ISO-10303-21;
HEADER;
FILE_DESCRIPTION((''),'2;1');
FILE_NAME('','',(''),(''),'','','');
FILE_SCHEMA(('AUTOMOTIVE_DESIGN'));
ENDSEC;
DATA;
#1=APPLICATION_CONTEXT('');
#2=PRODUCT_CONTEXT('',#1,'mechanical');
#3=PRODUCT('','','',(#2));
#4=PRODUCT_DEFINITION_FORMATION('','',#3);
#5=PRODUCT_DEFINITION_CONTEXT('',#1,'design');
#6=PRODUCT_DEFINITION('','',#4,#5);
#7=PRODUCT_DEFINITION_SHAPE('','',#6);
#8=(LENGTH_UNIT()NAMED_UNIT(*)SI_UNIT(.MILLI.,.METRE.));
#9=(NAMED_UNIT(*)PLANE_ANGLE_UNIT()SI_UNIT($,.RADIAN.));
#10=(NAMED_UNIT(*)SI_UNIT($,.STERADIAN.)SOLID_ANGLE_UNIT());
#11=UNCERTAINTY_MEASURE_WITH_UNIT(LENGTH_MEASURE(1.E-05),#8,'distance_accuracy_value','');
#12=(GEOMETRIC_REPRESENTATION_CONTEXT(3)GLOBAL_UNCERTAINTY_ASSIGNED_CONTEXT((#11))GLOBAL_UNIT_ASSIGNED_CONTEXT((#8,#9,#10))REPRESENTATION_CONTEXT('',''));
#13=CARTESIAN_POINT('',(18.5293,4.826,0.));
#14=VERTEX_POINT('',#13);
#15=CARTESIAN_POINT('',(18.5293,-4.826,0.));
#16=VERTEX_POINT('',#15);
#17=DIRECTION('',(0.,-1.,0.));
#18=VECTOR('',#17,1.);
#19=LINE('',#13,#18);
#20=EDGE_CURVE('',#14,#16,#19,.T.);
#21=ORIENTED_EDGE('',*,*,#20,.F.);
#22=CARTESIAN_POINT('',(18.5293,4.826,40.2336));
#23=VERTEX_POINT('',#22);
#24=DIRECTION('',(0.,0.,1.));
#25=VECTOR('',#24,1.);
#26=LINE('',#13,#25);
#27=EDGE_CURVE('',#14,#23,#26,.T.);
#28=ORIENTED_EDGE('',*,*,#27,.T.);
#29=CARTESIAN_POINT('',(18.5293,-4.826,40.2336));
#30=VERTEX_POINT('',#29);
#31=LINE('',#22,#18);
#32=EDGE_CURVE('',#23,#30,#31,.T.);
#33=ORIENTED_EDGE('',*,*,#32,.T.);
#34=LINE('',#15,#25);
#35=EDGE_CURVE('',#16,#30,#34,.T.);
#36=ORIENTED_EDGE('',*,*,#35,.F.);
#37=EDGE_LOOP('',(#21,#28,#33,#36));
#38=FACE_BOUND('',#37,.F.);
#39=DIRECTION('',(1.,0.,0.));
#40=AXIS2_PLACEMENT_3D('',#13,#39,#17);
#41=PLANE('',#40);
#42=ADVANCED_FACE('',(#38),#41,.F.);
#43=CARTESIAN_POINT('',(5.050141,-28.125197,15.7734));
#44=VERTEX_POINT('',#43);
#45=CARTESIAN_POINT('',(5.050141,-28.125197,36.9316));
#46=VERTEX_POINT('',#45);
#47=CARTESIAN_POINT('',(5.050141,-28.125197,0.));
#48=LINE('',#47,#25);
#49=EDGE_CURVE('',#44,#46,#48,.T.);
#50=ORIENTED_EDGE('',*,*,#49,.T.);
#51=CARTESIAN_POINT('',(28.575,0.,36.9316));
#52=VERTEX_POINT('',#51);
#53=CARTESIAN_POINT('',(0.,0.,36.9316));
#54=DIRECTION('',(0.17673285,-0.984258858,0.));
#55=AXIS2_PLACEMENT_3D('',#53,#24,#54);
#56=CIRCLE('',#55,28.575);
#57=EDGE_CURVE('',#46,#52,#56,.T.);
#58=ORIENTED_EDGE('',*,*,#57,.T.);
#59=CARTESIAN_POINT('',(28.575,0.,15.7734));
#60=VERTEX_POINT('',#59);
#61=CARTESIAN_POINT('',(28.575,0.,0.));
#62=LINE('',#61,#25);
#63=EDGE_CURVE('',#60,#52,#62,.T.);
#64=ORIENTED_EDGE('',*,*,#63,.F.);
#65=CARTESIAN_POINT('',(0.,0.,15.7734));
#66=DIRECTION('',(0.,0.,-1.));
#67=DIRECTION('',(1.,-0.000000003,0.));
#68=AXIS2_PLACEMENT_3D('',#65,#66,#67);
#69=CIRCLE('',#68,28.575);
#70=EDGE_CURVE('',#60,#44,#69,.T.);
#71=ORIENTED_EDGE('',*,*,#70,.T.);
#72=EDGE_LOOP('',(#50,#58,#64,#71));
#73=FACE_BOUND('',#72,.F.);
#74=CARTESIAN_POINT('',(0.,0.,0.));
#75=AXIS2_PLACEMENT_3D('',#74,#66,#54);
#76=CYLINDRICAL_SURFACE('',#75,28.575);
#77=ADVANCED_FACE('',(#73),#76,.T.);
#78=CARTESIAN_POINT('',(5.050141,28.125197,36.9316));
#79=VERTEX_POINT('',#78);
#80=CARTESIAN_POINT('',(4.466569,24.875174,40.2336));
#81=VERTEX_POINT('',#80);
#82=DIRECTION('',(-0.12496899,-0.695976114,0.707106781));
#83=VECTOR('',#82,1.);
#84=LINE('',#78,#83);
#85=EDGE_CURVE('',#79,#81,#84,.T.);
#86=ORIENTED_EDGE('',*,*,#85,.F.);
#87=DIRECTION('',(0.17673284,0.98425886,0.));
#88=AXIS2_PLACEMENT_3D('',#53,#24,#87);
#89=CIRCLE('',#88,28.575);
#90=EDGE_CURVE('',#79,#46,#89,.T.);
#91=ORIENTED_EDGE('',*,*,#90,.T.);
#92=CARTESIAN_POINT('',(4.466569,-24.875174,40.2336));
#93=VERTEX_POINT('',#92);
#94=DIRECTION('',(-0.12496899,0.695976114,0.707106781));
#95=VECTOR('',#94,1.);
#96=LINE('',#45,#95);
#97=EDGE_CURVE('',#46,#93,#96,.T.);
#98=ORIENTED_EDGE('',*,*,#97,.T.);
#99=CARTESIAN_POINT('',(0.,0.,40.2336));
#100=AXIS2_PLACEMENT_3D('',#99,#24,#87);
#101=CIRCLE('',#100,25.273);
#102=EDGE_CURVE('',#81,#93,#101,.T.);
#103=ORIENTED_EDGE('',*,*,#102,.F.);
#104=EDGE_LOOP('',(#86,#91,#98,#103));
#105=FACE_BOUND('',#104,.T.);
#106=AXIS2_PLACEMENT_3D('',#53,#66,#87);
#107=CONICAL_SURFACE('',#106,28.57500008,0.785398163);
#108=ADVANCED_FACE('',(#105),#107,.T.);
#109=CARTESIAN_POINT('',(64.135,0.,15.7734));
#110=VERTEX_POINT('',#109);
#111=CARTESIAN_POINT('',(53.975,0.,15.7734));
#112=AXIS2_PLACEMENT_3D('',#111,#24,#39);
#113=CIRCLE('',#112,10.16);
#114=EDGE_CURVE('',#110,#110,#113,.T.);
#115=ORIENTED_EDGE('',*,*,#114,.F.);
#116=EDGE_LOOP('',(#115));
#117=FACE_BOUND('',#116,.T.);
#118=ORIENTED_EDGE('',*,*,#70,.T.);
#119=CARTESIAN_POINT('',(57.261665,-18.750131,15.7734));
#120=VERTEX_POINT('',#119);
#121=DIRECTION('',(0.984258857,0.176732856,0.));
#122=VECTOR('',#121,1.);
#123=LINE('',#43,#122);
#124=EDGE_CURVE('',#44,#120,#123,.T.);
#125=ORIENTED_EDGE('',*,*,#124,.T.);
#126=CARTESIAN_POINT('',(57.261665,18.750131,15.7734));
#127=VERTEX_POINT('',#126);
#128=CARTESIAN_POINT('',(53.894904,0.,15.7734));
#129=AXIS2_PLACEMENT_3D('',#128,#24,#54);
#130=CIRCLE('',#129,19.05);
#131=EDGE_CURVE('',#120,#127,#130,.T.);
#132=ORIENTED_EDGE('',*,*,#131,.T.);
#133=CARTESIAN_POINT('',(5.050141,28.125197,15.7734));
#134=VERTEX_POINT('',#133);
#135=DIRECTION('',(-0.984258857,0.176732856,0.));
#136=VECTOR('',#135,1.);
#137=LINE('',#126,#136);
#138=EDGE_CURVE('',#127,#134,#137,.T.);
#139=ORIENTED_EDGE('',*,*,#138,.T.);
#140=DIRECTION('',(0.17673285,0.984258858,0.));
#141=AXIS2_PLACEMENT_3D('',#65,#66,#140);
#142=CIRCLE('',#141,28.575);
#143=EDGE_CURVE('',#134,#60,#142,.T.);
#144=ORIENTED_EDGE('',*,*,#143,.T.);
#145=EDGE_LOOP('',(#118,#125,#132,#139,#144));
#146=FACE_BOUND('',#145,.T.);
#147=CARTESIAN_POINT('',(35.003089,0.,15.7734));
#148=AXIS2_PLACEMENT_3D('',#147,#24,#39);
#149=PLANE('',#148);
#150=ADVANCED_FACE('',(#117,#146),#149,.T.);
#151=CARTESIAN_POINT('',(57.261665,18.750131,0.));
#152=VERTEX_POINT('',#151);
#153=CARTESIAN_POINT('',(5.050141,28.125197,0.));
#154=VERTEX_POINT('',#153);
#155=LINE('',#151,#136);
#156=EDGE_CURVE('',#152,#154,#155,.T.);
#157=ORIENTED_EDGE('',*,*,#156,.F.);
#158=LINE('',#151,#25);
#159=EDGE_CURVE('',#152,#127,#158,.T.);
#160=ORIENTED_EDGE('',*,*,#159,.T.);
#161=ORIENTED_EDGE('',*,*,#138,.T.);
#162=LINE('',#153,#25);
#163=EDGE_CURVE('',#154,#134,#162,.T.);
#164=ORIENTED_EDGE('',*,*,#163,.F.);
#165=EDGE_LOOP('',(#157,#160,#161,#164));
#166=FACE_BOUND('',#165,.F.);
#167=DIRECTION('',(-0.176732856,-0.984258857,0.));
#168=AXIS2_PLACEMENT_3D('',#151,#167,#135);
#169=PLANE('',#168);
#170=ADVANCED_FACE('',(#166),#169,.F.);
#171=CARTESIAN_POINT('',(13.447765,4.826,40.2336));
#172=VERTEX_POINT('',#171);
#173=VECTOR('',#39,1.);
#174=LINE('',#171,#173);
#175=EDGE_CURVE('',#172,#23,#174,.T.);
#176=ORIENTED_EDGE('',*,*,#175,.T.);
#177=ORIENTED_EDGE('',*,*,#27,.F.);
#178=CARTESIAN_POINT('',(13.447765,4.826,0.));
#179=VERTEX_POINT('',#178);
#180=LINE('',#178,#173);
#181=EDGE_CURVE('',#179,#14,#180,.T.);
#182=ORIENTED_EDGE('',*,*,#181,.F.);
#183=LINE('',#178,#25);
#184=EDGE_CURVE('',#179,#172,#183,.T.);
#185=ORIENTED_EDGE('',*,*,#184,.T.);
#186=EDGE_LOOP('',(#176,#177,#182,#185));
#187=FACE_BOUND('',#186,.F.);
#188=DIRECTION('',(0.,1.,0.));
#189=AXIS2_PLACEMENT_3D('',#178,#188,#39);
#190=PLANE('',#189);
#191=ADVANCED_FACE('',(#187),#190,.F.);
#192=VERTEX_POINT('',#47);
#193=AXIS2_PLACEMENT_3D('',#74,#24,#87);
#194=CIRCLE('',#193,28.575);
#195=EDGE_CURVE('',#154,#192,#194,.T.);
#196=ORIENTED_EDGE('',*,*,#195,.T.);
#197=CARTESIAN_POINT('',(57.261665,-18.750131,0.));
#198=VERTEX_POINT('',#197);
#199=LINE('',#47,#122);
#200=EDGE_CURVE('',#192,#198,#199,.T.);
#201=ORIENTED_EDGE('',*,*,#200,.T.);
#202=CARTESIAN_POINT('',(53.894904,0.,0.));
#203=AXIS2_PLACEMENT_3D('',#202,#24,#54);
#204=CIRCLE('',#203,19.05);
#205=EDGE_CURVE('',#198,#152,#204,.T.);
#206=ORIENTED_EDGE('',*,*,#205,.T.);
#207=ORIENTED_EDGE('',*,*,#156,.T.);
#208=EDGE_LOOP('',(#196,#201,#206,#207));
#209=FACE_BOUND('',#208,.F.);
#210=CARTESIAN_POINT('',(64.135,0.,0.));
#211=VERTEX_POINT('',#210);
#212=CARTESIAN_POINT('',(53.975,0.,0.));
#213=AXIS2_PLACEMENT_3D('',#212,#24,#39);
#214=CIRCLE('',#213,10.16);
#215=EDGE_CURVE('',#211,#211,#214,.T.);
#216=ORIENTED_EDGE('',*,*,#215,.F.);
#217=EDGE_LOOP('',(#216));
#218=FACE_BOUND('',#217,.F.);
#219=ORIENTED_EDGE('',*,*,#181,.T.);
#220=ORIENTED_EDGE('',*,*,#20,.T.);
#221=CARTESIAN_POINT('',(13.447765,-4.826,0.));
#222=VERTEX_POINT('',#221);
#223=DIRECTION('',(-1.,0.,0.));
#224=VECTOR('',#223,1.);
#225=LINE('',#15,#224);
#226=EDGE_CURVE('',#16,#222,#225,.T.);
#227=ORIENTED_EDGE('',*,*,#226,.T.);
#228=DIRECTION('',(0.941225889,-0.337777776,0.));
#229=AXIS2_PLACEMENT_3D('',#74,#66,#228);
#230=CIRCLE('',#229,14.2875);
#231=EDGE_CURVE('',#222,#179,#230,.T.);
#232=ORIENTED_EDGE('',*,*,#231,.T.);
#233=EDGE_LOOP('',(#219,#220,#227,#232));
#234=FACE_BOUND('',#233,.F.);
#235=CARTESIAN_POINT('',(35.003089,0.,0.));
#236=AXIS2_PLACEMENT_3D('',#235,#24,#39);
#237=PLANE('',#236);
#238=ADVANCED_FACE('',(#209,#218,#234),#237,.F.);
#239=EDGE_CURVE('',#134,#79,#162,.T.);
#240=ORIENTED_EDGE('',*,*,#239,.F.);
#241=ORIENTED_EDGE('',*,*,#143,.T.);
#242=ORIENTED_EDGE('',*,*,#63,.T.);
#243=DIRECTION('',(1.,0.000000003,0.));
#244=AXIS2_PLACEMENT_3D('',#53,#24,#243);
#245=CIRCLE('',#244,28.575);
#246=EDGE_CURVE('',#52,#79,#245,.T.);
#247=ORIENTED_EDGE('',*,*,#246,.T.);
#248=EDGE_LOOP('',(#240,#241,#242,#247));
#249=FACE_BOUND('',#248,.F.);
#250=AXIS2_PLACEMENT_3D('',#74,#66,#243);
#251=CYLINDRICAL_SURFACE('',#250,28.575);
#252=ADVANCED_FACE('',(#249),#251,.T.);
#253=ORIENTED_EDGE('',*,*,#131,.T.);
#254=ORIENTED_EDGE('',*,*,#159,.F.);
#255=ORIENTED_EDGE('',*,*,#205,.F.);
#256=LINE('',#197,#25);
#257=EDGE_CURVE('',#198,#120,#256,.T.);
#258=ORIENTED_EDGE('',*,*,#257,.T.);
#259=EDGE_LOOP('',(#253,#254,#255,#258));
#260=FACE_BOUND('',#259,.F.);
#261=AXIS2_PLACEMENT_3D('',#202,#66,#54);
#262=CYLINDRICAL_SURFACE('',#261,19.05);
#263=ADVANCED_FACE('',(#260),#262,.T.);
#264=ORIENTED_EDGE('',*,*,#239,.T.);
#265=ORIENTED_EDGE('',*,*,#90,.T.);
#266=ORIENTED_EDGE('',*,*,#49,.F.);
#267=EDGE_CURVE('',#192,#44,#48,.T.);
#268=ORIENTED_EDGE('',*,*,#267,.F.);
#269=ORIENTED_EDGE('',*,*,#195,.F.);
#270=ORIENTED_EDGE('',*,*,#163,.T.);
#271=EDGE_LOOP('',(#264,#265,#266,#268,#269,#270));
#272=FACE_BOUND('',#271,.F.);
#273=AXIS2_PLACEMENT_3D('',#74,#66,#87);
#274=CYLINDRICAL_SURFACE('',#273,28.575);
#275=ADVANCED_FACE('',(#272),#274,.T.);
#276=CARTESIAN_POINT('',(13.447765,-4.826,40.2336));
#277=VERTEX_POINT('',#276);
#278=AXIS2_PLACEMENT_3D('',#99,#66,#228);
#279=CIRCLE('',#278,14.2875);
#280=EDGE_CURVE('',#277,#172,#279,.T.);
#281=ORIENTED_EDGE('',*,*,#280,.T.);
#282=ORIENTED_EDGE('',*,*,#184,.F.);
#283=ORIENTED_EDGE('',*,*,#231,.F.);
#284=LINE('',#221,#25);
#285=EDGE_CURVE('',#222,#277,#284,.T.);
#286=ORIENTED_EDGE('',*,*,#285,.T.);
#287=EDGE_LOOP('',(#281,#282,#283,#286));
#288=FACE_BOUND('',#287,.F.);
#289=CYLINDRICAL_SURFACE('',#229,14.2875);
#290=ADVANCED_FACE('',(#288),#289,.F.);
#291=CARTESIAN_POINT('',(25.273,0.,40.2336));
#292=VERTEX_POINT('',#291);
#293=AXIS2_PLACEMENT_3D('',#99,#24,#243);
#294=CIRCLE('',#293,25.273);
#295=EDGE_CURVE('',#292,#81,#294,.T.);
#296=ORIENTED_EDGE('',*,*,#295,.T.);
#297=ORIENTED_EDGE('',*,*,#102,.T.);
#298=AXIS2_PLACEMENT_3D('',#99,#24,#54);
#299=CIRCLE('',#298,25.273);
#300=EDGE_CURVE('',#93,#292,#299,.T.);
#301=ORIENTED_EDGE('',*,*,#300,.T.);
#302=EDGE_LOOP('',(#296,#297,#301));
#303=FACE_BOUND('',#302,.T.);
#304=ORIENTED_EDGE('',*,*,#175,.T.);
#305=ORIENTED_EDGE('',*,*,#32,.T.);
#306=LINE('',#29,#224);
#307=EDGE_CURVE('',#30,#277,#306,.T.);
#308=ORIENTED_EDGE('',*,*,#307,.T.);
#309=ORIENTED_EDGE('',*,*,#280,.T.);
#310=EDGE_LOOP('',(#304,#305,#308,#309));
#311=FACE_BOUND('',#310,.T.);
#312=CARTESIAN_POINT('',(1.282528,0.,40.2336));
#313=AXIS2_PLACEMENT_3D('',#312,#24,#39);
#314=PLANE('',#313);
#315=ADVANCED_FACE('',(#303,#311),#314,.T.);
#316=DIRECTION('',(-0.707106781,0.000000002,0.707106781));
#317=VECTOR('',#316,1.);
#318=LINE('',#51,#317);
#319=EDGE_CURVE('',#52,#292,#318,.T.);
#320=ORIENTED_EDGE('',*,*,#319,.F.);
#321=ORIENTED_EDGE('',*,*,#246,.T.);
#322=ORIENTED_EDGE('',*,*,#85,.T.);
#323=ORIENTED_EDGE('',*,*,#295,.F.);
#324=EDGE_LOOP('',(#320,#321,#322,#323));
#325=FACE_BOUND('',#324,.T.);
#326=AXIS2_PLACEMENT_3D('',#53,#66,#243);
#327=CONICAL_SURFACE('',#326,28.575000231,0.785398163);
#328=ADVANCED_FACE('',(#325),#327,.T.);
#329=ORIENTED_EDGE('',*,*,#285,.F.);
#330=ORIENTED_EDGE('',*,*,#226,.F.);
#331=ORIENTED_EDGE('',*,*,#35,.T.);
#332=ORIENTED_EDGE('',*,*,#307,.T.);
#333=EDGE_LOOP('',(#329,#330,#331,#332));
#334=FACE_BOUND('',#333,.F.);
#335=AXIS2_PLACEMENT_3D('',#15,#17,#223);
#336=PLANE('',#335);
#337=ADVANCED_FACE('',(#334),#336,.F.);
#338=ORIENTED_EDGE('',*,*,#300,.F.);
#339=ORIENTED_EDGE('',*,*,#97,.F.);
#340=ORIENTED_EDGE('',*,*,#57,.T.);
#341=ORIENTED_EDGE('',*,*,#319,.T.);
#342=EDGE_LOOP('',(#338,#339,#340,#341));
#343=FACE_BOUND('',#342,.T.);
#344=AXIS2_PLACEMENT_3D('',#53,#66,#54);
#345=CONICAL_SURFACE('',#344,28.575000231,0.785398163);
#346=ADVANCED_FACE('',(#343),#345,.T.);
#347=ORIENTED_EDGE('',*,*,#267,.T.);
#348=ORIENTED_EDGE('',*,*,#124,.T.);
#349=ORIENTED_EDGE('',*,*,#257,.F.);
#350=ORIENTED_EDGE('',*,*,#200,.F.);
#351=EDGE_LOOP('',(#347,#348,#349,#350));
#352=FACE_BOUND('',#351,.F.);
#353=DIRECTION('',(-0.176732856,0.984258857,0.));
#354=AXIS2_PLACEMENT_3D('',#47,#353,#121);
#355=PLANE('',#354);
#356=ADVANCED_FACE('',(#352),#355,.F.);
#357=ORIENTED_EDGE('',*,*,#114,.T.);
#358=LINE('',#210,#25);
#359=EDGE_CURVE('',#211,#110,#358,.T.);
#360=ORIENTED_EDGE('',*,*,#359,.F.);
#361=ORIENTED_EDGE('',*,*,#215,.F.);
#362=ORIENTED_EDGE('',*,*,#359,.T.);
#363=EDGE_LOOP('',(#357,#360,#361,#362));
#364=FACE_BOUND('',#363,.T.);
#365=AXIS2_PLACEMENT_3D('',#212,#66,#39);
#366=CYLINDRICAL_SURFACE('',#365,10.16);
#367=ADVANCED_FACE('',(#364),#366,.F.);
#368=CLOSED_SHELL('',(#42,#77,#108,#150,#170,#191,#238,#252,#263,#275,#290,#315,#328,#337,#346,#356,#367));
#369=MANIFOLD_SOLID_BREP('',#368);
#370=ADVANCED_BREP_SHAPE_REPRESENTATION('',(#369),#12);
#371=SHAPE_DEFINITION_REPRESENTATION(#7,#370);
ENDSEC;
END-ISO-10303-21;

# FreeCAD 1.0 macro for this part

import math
import FreeCAD as App
import Part
import Sketcher

V = App.Vector
Q = App.Units.Quantity


def edges_at(feature, points):
    """Names of the edges that pass closest to the given points."""
    edges = feature.Shape.Edges
    near = lambda p: min(range(len(edges)), key=lambda i: edges[i].distToShape(Part.Vertex(*p))[0])
    return sorted({f"Edge{near(p) + 1}" for p in points})

doc = App.newDocument("Part")
body = doc.addObject("PartDesign::Body", "Body")

# Sketch on XY plane
sketch1 = doc.addObject("Sketcher::SketchObject", "Sketch")
body.addObject(sketch1)
sketch1.AttachmentSupport = (doc.XY_Plane, [""])
sketch1.MapMode = "FlatFace"
sketch1.addGeometry([
    Part.ArcOfCircle(Part.Circle(V(0, 0, 0), V(0, 0, 1), 29), math.radians(-80), math.radians(0)),  # 0
    Part.ArcOfCircle(Part.Circle(V(0, 0, 0), V(0, 0, 1), 29), math.radians(0), math.radians(80)),  # 1
    Part.ArcOfCircle(Part.Circle(V(0, 0, 0), V(0, 0, 1), 29), math.radians(80), math.radians(280)),  # 2
    Part.LineSegment(V(19, -5, 0), V(13, -5, 0)),  # 3
    Part.ArcOfCircle(Part.Circle(V(0, 0, 0), V(0, 0, 1), 14), math.radians(20), math.radians(340)),  # 4
    Part.LineSegment(V(13, 5, 0), V(19, 5, 0)),  # 5
    Part.LineSegment(V(19, 5, 0), V(19, -5, 0)),  # 6
], False)
sketch1.addConstraint([
    Sketcher.Constraint("Tangent", 0, 2, 1, 1),
    Sketcher.Constraint("Tangent", 1, 2, 2, 1),
    Sketcher.Constraint("Tangent", 2, 2, 0, 1),
    Sketcher.Constraint("Coincident", 3, 2, 4, 2),
    Sketcher.Constraint("Coincident", 4, 1, 5, 1),
    Sketcher.Constraint("Coincident", 5, 2, 6, 1),
    Sketcher.Constraint("Coincident", 6, 2, 3, 1),
    Sketcher.Constraint("Horizontal", 3),
    Sketcher.Constraint("Horizontal", 5),
    Sketcher.Constraint("Vertical", 6),
    Sketcher.Constraint("Coincident", 0, 3, -1, 1),
    Sketcher.Constraint("Coincident", 4, 3, -1, 1),
    Sketcher.Constraint("PointOnObject", 0, 2, -1),
    Sketcher.Constraint("Vertical", 1, 2, 2, 2),
    Sketcher.Constraint("Vertical", 3, 2, 4, 1),
    Sketcher.Constraint("Radius", 0, Q("1.125 in")),
    Sketcher.Constraint("Radius", 4, Q("0.5625 in")),
    Sketcher.Constraint("DistanceY", 6, 2, 6, 1, Q("0.38 in")),
    Sketcher.Constraint("DistanceX", -1, 1, 5, 2, Q("0.7295 in")),
    Sketcher.Constraint("DistanceX", -1, 1, 1, 2, 5.050141),
])
pad1 = doc.addObject("PartDesign::Pad", "Pad")
body.addObject(pad1)
pad1.Profile = sketch1
pad1.Length = Q("1.584 in")

# Sketch on XY plane
sketch2 = doc.addObject("Sketcher::SketchObject", "Sketch001")
body.addObject(sketch2)
sketch2.AttachmentSupport = (doc.XY_Plane, [""])
sketch2.MapMode = "FlatFace"
sketch2.addGeometry([
    Part.ArcOfCircle(Part.Circle(V(0, 0, 0), V(0, 0, 1), 28.575), math.radians(0), math.radians(79.820485)),  # 0
    Part.ArcOfCircle(Part.Circle(V(0, 0, 0), V(0, 0, 1), 28.575), math.radians(-79.820485), math.radians(0)),  # 1
    Part.LineSegment(V(5.050141, -28.125197, 0), V(57.261665, -18.750131, 0)),  # 2
    Part.ArcOfCircle(Part.Circle(V(53.894904, 0, 0), V(0, 0, 1), 19.05), math.radians(-79.820485), math.radians(79.820485)),  # 3
    Part.LineSegment(V(57.261665, 18.750131, 0), V(5.050141, 28.125197, 0)),  # 4
    Part.Circle(V(53.975, 0, 0), V(0, 0, 1), 10.16),  # 5
], False)
sketch2.addConstraint([
    Sketcher.Constraint("Coincident", 0, 1, 1, 2),
    Sketcher.Constraint("Coincident", 1, 1, 2, 1),
    Sketcher.Constraint("Coincident", 2, 2, 3, 1),
    Sketcher.Constraint("Coincident", 3, 2, 4, 1),
    Sketcher.Constraint("Coincident", 4, 2, 0, 2),
    Sketcher.Constraint("Coincident", 0, 3, -1, 1),
    Sketcher.Constraint("Coincident", 1, 3, -1, 1),
    Sketcher.Constraint("PointOnObject", 3, 3, -1),
    Sketcher.Constraint("PointOnObject", 5, 3, -1),
    Sketcher.Constraint("PointOnObject", 0, 1, -1),
    Sketcher.Constraint("Diameter", 5, Q("0.8 in")),
    Sketcher.Constraint("Radius", 3, Q("0.75 in")),
    Sketcher.Constraint("Radius", 0, Q("1.125 in")),
    Sketcher.Constraint("DistanceX", 0, 1, 5, 3, Q("1 in")),
    Sketcher.Constraint("DistanceX", -1, 1, 1, 1, 5.050141),
    Sketcher.Constraint("DistanceY", 2, 2, -1, 1, 18.750131),
    Sketcher.Constraint("DistanceY", -1, 1, 3, 2, 18.750131),
    Sketcher.Constraint("DistanceX", -1, 1, 4, 2, 5.050141),
    Sketcher.Constraint("Distance", 2, 53.046537),
])
pad2 = doc.addObject("PartDesign::Pad", "Pad001")
body.addObject(pad2)
pad2.Profile = sketch2
pad2.Length = Q("0.621 in")
doc.recompute()

chamfer = doc.addObject("PartDesign::Chamfer", "Chamfer")
body.addObject(chamfer)
chamfer.Base = (pad2, edges_at(pad2, [(-28.575, 0, 40.234)]))
chamfer.Size = Q("0.13 in")

doc.recompute()
